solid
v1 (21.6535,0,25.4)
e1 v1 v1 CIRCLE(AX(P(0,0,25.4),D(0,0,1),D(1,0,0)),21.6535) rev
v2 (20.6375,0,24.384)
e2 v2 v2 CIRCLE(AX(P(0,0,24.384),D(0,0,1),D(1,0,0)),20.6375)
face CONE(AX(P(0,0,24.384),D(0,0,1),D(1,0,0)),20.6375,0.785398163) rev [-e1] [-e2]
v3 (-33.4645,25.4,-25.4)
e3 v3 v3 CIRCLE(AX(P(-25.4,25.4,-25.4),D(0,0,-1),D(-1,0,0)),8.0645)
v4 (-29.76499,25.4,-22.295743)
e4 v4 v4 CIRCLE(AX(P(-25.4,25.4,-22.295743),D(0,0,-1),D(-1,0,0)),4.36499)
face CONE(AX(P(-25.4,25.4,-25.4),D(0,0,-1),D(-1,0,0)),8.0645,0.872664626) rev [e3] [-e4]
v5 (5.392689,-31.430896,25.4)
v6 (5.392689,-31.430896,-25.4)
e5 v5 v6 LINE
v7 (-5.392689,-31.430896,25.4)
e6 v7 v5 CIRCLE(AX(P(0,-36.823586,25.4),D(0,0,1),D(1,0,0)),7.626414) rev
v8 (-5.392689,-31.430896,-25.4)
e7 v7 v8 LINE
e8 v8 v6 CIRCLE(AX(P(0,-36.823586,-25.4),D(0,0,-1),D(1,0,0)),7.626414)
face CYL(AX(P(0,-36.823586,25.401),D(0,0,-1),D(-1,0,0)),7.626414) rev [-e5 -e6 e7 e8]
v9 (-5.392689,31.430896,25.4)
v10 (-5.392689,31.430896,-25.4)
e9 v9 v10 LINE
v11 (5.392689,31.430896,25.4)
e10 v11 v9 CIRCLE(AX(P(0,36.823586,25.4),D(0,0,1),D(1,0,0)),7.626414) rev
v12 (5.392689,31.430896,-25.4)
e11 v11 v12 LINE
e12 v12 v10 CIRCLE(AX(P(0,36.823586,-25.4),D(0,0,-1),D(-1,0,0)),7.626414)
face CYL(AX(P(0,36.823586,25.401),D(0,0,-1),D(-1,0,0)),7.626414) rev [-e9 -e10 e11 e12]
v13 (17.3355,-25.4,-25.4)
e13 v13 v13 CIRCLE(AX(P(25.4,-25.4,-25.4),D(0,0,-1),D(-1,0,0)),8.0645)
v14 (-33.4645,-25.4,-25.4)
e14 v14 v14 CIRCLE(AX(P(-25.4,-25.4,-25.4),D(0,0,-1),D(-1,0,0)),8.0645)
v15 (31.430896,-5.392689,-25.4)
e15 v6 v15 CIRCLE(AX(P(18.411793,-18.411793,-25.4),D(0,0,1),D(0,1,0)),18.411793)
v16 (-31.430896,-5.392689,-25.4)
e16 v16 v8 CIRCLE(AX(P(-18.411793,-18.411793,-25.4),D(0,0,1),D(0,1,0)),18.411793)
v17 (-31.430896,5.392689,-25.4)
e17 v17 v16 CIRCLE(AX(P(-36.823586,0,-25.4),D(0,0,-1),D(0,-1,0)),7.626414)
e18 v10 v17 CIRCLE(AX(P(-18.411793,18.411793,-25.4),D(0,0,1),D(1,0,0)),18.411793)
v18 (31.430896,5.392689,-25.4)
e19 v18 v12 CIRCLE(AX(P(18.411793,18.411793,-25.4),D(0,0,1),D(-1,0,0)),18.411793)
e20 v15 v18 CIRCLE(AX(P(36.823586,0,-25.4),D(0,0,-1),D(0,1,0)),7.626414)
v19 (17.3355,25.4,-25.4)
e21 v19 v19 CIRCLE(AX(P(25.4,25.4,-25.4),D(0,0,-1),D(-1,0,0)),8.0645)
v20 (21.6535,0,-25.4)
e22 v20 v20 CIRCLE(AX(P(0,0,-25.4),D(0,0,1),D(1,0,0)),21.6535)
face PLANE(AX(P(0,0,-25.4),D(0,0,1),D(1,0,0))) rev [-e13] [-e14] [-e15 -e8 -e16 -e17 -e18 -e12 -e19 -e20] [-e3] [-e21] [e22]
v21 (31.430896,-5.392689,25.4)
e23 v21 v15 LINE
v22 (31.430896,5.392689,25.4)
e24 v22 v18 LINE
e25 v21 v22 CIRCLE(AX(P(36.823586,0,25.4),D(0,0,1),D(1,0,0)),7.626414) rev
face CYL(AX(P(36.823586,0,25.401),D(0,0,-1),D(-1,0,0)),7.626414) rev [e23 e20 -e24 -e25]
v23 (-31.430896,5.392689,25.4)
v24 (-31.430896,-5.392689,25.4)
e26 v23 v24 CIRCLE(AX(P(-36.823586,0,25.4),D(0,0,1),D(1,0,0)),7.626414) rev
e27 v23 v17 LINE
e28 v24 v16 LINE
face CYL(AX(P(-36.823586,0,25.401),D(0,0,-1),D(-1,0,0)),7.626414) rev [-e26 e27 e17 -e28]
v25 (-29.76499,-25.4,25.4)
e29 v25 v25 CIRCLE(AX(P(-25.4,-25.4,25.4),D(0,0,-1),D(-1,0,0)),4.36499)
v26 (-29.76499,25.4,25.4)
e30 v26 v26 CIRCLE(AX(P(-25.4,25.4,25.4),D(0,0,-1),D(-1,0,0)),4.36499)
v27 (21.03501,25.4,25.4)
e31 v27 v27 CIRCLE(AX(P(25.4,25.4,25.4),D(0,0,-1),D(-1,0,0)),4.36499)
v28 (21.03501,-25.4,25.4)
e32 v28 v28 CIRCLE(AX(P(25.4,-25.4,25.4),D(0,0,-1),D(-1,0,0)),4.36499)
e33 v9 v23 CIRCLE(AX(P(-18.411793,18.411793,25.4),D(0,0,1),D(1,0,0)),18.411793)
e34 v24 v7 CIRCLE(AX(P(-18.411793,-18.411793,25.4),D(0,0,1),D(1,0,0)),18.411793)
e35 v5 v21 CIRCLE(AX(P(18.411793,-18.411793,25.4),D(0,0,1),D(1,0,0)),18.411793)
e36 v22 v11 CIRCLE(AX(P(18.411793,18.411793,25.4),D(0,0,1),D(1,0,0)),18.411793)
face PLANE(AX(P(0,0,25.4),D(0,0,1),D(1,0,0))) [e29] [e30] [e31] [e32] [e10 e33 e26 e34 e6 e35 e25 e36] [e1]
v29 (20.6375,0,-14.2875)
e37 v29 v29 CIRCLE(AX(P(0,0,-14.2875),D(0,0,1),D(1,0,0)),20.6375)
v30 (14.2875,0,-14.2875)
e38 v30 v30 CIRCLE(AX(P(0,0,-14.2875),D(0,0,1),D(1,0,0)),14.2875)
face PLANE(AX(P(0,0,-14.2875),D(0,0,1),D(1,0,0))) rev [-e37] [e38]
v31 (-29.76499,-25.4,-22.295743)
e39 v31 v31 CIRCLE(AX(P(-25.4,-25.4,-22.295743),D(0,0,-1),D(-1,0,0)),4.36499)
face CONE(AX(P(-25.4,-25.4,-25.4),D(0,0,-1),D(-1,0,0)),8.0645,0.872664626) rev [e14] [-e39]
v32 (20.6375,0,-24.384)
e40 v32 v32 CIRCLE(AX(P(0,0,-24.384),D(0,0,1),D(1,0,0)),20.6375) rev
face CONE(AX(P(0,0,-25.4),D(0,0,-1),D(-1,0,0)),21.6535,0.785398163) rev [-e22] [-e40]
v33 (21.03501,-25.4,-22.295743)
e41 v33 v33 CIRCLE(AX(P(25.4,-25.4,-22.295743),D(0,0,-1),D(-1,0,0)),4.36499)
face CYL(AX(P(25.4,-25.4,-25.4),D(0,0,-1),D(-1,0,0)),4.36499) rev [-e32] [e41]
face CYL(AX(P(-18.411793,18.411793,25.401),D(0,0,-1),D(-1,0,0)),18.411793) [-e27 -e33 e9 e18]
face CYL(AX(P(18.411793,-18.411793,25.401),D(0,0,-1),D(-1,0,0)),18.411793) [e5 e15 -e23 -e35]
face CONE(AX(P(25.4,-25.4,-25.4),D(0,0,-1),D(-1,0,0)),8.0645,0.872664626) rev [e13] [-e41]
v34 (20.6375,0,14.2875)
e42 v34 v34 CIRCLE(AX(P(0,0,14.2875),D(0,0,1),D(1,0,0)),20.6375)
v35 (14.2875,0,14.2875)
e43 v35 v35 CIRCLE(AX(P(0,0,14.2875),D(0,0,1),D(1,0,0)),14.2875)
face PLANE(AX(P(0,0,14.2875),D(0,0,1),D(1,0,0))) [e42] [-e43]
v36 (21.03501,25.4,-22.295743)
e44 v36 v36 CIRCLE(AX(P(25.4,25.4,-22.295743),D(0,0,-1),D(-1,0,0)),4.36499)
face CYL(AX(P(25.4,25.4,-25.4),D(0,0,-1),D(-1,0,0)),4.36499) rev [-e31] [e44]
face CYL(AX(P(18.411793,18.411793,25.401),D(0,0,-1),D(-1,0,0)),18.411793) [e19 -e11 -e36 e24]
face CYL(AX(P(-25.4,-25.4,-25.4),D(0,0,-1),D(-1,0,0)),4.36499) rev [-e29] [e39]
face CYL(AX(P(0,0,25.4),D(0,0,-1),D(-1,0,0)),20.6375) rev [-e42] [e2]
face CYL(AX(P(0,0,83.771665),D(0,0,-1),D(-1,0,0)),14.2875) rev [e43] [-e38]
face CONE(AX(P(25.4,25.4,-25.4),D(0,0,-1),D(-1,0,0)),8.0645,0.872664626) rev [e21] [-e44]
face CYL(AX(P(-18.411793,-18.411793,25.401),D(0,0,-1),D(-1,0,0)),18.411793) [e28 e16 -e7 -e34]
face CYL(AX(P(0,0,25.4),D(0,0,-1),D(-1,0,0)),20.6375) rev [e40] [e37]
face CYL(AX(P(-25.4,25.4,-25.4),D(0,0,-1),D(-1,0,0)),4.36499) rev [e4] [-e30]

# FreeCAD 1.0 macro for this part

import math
import FreeCAD as App
import Part
import Sketcher
Q = App.Units.Quantity


def edges_at(feature, points):
    """Names of the edges that pass closest to the given points."""
    edges = feature.Shape.Edges
    near = lambda p: min(range(len(edges)), key=lambda i: edges[i].distToShape(Part.Vertex(*p))[0])
    return sorted({f"Edge{near(p) + 1}" for p in points})

doc = App.newDocument("Part")
body = doc.addObject("PartDesign::Body", "Body")

# Sketch on XY plane
sketch1 = doc.addObject("Sketcher::SketchObject", "Sketch")
body.addObject(sketch1)
sketch1.AttachmentSupport = (doc.XY_Plane, [""])
sketch1.MapMode = "FlatFace"
sketch1.addGeometry([
    Part.Circle(App.Vector(0, 0, 0), App.Vector(0, 0, 1), 44.5),  # 0
    Part.Circle(App.Vector(-25.4, -25.4, 0), App.Vector(0, 0, 1), 4),  # 1
    Part.Circle(App.Vector(25.4, -25.4, 0), App.Vector(0, 0, 1), 4),  # 2
    Part.Circle(App.Vector(-25.4, 25.4, 0), App.Vector(0, 0, 1), 4),  # 3
    Part.Circle(App.Vector(0, 0, 0), App.Vector(0, 0, 1), 20.6),  # 4
    Part.Circle(App.Vector(25.4, 25.4, 0), App.Vector(0, 0, 1), 4),  # 5
], False)
sketch1.addConstraint([
    Sketcher.Constraint("Coincident", 0, 3, -1, 1),
    Sketcher.Constraint("Coincident", 4, 3, -1, 1),
    Sketcher.Constraint("Equal", 1, 2),
    Sketcher.Constraint("Equal", 2, 3),
    Sketcher.Constraint("Equal", 3, 5),
    Sketcher.Constraint("Symmetric", 2, 3, 3, 3, -1, 1),
    Sketcher.Constraint("Symmetric", 1, 3, 5, 3, -1, 1),
    Sketcher.Constraint("Symmetric", 1, 3, 2, 3, -2),
    Sketcher.Constraint("Diameter", 0, Q("3.5 in")),
    Sketcher.Constraint("Diameter", 1, Q("0.3125 in")),
    Sketcher.Constraint("Diameter", 4, Q("1.625 in")),
    Sketcher.Constraint("DistanceX", 1, 3, -1, 1, Q("1 in")),
    Sketcher.Constraint("DistanceY", 1, 3, -1, 1, Q("1 in")),
])
pad1 = doc.addObject("PartDesign::Pad", "Pad")
body.addObject(pad1)
pad1.Profile = sketch1
pad1.Length = Q("2 in")
pad1.Midplane = True

# Sketch on XY plane
sketch2 = doc.addObject("Sketcher::SketchObject", "Sketch001")
body.addObject(sketch2)
sketch2.AttachmentSupport = (doc.XY_Plane, [""])
sketch2.MapMode = "FlatFace"
sketch2.addGeometry([
    Part.Circle(App.Vector(0, 0, 0), App.Vector(0, 0, 1), 21),
    Part.Circle(App.Vector(0, 0, 0), App.Vector(0, 0, 1), 14),
], False)
sketch2.addConstraint([
    Sketcher.Constraint("Coincident", 0, 3, -1, 1),
    Sketcher.Constraint("Coincident", 1, 3, -1, 1),
    Sketcher.Constraint("Diameter", 0, Q("1.625 in")),
    Sketcher.Constraint("Diameter", 1, Q("1.125 in")),
])
pad2 = doc.addObject("PartDesign::Pad", "Pad001")
body.addObject(pad2)
pad2.Profile = sketch2
pad2.Length = Q("0.5625 in")

# Sketch on XY plane
sketch3 = doc.addObject("Sketcher::SketchObject", "Sketch002")
body.addObject(sketch3)
sketch3.AttachmentSupport = (doc.XY_Plane, [""])
sketch3.MapMode = "FlatFace"
sketch3.addGeometry([
    Part.Circle(App.Vector(0, 0, 0), App.Vector(0, 0, 1), 21),
    Part.Circle(App.Vector(0, 0, 0), App.Vector(0, 0, 1), 14),
], False)
sketch3.addConstraint([
    Sketcher.Constraint("Coincident", 0, 3, -1, 1),
    Sketcher.Constraint("Coincident", 1, 3, -1, 1),
    Sketcher.Constraint("Diameter", 0, Q("1.625 in")),
    Sketcher.Constraint("Diameter", 1, Q("1.125 in")),
])
pad3 = doc.addObject("PartDesign::Pad", "Pad002")
body.addObject(pad3)
pad3.Profile = sketch3
pad3.Length = Q("0.5625 in")
pad3.Reversed = True
doc.recompute()

chamfer = doc.addObject("PartDesign::Chamfer", "Chamfer")
body.addObject(chamfer)
chamfer.Base = (pad3, edges_at(pad3, [(-20.637, 0, -25.4), (-20.637, 0, 25.4)]))
chamfer.Size = Q("0.04 in")

# Sketch on XY plane
sketch4 = doc.addObject("Sketcher::SketchObject", "Sketch003")
body.addObject(sketch4)
sketch4.AttachmentSupport = (doc.XY_Plane, [""])
sketch4.MapMode = "FlatFace"
sketch4.AttachmentOffset = App.Placement(App.Vector(0, 0, -1 * 25.4), App.Rotation())
sketch4.addGeometry([
    Part.ArcOfCircle(Part.Circle(App.Vector(18, 18, 0), App.Vector(0, 0, 1), 18), math.radians(45), math.radians(135)),
    Part.ArcOfCircle(Part.Circle(App.Vector(0, 37, 0), App.Vector(0, 0, 1), 8), math.radians(-135), math.radians(-45)),
    Part.ArcOfCircle(Part.Circle(App.Vector(-18, 18, 0), App.Vector(0, 0, 1), 18), math.radians(45), math.radians(135)),
    Part.ArcOfCircle(Part.Circle(App.Vector(0, 0, 0), App.Vector(0, 0, 1), 44), math.radians(45), math.radians(135)),
], False)
sketch4.addConstraint([
    Sketcher.Constraint("Tangent", 0, 2, 1, 2),
    Sketcher.Constraint("Tangent", 1, 1, 2, 1),
    Sketcher.Constraint("Tangent", 2, 2, 3, 2),
    Sketcher.Constraint("Tangent", 3, 1, 0, 1),
    Sketcher.Constraint("Coincident", 3, 3, -1, 1),
    Sketcher.Constraint("Equal", 0, 2),
    Sketcher.Constraint("PointOnObject", 1, 3, -2),
    Sketcher.Constraint("Horizontal", 1, 1, 2, 2),
    Sketcher.Constraint("Radius", 3, Q("1.75 in")),
    Sketcher.Constraint("Radius", 0, Q("18.411793 mm")),
    Sketcher.Constraint("DistanceX", -1, 1, 0, 2, Q("5.392689 mm")),
])
pocket1 = doc.addObject("PartDesign::Pocket", "Pocket")
body.addObject(pocket1)
pocket1.Profile = sketch4
pocket1.Length = Q("2 in")
pocket1.Reversed = True
doc.recompute()

polarpattern = doc.addObject("PartDesign::PolarPattern", "PolarPattern")
body.addObject(polarpattern)
polarpattern.Originals = [pocket1]
polarpattern.Axis = (doc.Z_Axis, [""])
polarpattern.Angle = 360
polarpattern.Occurrences = 4
body.Tip = polarpattern

# Sketch on XY plane
sketch5 = doc.addObject("Sketcher::SketchObject", "Sketch004")
body.addObject(sketch5)
sketch5.AttachmentSupport = (doc.XY_Plane, [""])
sketch5.MapMode = "FlatFace"
sketch5.AttachmentOffset = App.Placement(App.Vector(0, 0, -1 * 25.4), App.Rotation())
sketch5.addGeometry([
    Part.Circle(App.Vector(-25.4, 25.4, 0), App.Vector(0, 0, 1), 4.4),
    Part.Circle(App.Vector(25.4, 25.4, 0), App.Vector(0, 0, 1), 4.4),
    Part.Circle(App.Vector(25.4, -25.4, 0), App.Vector(0, 0, 1), 4.4),
    Part.Circle(App.Vector(-25.4, -25.4, 0), App.Vector(0, 0, 1), 4.4),
], False)
sketch5.addConstraint([
    Sketcher.Constraint("Equal", 0, 1),
    Sketcher.Constraint("Equal", 1, 2),
    Sketcher.Constraint("Equal", 2, 3),
    Sketcher.Constraint("Symmetric", 0, 3, 2, 3, -1, 1),
    Sketcher.Constraint("Symmetric", 1, 3, 3, 3, -1, 1),
    Sketcher.Constraint("Symmetric", 0, 3, 1, 3, -2),
    Sketcher.Constraint("DistanceX", 0, 3, -1, 1, Q("1 in")),
    Sketcher.Constraint("DistanceY", -1, 1, 0, 3, Q("1 in")),
    Sketcher.Constraint("Diameter", 0, Q("0.3437 in")),
])
doc.recompute()
hole = doc.addObject("PartDesign::Hole", "Hole")
body.addObject(hole)
hole.Profile = sketch5
hole.ThreadType = "None"
hole.Diameter = Q("0.3437 in")
hole.DepthType = "Dimension"
hole.Depth = Q("2 in")
hole.DrillPoint = "Flat"
hole.HoleCutType = "Countersink"
hole.HoleCutDiameter = Q("0.635 in")
hole.HoleCutCountersinkAngle = 100
hole.Reversed = True

doc.recompute()
